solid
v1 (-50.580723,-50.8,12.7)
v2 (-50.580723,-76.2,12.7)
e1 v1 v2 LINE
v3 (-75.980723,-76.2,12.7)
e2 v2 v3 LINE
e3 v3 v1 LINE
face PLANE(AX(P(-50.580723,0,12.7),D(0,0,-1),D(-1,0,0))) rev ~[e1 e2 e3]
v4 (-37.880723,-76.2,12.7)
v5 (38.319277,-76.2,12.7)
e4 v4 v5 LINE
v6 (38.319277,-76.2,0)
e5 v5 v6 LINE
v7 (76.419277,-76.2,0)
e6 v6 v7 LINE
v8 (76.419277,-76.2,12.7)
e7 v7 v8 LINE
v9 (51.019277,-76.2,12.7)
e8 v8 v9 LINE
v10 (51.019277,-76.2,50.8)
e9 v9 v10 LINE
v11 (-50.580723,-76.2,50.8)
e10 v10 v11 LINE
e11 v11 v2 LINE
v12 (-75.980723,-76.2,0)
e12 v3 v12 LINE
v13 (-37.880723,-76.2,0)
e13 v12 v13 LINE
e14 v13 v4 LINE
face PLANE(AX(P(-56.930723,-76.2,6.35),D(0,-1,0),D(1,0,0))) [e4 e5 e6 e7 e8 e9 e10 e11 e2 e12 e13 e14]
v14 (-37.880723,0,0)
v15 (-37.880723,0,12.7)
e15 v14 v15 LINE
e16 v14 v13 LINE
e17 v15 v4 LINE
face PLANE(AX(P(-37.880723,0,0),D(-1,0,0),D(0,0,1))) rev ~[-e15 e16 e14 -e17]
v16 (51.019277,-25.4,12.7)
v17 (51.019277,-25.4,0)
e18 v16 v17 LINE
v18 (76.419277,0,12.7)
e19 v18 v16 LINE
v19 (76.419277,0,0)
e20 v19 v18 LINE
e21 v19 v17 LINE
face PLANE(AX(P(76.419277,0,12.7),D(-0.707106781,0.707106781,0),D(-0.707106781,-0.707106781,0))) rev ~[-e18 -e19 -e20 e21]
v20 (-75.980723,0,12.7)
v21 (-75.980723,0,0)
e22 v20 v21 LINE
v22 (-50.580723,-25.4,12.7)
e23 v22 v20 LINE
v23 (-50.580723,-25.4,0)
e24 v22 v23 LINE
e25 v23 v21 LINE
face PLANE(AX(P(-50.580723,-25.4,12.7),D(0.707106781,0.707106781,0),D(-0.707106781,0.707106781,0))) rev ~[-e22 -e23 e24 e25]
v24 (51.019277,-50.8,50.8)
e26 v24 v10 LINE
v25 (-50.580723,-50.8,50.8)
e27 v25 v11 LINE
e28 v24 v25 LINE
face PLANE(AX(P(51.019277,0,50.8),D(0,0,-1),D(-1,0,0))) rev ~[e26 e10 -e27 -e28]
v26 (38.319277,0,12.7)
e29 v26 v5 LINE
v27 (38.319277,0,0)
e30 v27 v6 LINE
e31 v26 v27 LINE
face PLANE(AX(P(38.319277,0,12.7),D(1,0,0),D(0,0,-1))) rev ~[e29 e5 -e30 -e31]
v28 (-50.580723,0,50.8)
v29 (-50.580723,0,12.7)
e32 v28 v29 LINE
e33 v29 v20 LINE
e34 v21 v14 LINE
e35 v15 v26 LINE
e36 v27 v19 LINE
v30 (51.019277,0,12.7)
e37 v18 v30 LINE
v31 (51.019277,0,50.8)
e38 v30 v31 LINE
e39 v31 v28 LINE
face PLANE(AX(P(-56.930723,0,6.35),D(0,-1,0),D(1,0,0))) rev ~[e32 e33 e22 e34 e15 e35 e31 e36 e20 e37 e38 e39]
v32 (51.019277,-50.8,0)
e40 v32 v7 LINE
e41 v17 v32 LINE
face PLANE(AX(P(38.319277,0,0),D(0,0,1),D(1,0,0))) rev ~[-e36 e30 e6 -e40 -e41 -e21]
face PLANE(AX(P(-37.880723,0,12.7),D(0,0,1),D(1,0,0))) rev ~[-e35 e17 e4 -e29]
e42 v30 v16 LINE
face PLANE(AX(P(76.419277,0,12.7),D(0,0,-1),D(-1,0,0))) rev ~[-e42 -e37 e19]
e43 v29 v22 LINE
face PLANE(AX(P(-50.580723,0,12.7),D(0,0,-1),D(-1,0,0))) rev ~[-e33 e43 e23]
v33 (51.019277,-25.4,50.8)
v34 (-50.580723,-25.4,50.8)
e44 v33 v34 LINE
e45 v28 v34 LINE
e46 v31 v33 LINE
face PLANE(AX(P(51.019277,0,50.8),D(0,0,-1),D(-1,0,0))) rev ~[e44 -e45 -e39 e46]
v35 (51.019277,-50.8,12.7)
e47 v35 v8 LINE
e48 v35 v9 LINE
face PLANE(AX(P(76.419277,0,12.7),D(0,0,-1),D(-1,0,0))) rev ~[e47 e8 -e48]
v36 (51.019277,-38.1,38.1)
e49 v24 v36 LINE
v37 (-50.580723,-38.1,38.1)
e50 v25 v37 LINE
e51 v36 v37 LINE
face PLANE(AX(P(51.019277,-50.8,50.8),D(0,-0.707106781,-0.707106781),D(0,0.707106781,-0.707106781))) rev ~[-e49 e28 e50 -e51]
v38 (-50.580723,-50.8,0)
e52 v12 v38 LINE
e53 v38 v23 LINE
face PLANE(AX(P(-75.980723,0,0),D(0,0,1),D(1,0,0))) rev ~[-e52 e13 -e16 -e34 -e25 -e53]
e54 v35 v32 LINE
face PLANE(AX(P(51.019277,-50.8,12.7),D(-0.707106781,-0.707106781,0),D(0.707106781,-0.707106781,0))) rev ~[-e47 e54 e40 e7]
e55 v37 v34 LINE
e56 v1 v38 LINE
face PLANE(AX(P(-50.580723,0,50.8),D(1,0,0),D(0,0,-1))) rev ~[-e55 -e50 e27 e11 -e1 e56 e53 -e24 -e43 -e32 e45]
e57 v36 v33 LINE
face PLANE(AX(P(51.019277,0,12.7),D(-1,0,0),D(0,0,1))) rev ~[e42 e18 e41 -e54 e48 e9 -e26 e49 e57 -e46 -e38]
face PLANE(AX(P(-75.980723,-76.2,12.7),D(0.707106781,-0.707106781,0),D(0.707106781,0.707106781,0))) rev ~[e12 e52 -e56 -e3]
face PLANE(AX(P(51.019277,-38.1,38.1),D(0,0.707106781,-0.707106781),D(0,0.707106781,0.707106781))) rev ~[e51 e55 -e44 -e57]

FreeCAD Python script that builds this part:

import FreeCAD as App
import Part
import Sketcher
Q = App.Units.Quantity

doc = App.newDocument("Part")
body = doc.addObject("PartDesign::Body", "Body")

# Sketch on XZ plane
sketch1 = doc.addObject("Sketcher::SketchObject", "Sketch")
body.addObject(sketch1)
sketch1.AttachmentSupport = (doc.XZ_Plane, [""])
sketch1.MapMode = "FlatFace"
sketch1.addGeometry([
    Part.LineSegment(App.Vector(-76, 13, 0), App.Vector(-76, 0, 0)),  # 0
    Part.LineSegment(App.Vector(-76, 0, 0), App.Vector(-38, 0, 0)),  # 1
    Part.LineSegment(App.Vector(-38, 0, 0), App.Vector(-38, 13, 0)),  # 2
    Part.LineSegment(App.Vector(-38, 13, 0), App.Vector(38, 13, 0)),  # 3
    Part.LineSegment(App.Vector(38, 13, 0), App.Vector(38, 0, 0)),  # 4
    Part.LineSegment(App.Vector(38, 0, 0), App.Vector(76, 0, 0)),  # 5
    Part.LineSegment(App.Vector(76, 0, 0), App.Vector(76, 13, 0)),  # 6
    Part.LineSegment(App.Vector(76, 13, 0), App.Vector(51, 13, 0)),  # 7
    Part.LineSegment(App.Vector(51, 13, 0), App.Vector(51, 51, 0)),  # 8
    Part.LineSegment(App.Vector(51, 51, 0), App.Vector(-51, 51, 0)),  # 9
    Part.LineSegment(App.Vector(-51, 51, 0), App.Vector(-51, 13, 0)),  # 10
    Part.LineSegment(App.Vector(-51, 13, 0), App.Vector(-76, 13, 0)),  # 11
], False)
sketch1.addConstraint([
    Sketcher.Constraint("Coincident", 0, 2, 1, 1),
    Sketcher.Constraint("Coincident", 1, 2, 2, 1),
    Sketcher.Constraint("Coincident", 2, 2, 3, 1),
    Sketcher.Constraint("Coincident", 3, 2, 4, 1),
    Sketcher.Constraint("Coincident", 4, 2, 5, 1),
    Sketcher.Constraint("Coincident", 5, 2, 6, 1),
    Sketcher.Constraint("Coincident", 6, 2, 7, 1),
    Sketcher.Constraint("Coincident", 7, 2, 8, 1),
    Sketcher.Constraint("Coincident", 8, 2, 9, 1),
    Sketcher.Constraint("Coincident", 9, 2, 10, 1),
    Sketcher.Constraint("Coincident", 10, 2, 11, 1),
    Sketcher.Constraint("Coincident", 11, 2, 0, 1),
    Sketcher.Constraint("Vertical", 0),
    Sketcher.Constraint("Horizontal", 1),
    Sketcher.Constraint("Vertical", 2),
    Sketcher.Constraint("Horizontal", 3),
    Sketcher.Constraint("Vertical", 4),
    Sketcher.Constraint("Horizontal", 5),
    Sketcher.Constraint("Vertical", 6),
    Sketcher.Constraint("Horizontal", 7),
    Sketcher.Constraint("Vertical", 8),
    Sketcher.Constraint("Horizontal", 9),
    Sketcher.Constraint("Vertical", 10),
    Sketcher.Constraint("Horizontal", 11),
    Sketcher.Constraint("PointOnObject", 0, 2, -1),
    Sketcher.Constraint("PointOnObject", 4, 2, -1),
    Sketcher.Constraint("Horizontal", 3, 2, 6, 2),
    Sketcher.Constraint("Horizontal", 7, 2, 10, 2),
    Sketcher.Constraint("Equal", 1, 5),
    Sketcher.Constraint("Equal", 7, 11),
    Sketcher.Constraint("Equal", 5, 8),
    Sketcher.Constraint("DistanceX", 3, 1, 3, 2, Q("3 in")),
    Sketcher.Constraint("DistanceX", 7, 2, 7, 1, Q("1 in")),
    Sketcher.Constraint("DistanceX", 9, 2, 9, 1, Q("4 in")),
    Sketcher.Constraint("DistanceY", 0, 2, 0, 1, Q("0.5 in")),
    Sketcher.Constraint("DistanceX", 0, 2, -1, 1, Q("75.980723 mm")),
])
pad1 = doc.addObject("PartDesign::Pad", "Pad")
body.addObject(pad1)
pad1.Profile = sketch1
pad1.Length = Q("3 in")

# Sketch on YZ plane
sketch2 = doc.addObject("Sketcher::SketchObject", "Sketch001")
body.addObject(sketch2)
sketch2.AttachmentSupport = (doc.YZ_Plane, [""])
sketch2.MapMode = "FlatFace"
sketch2.AttachmentOffset = App.Placement(App.Vector(0, 0, 51.019277), App.Rotation())
sketch2.addGeometry([
    Part.LineSegment(App.Vector(-51, 51, 0), App.Vector(-38, 38, 0)),
    Part.LineSegment(App.Vector(-38, 38, 0), App.Vector(-25, 51, 0)),
    Part.LineSegment(App.Vector(-25, 51, 0), App.Vector(-51, 51, 0)),
], False)
sketch2.addConstraint([
    Sketcher.Constraint("Coincident", 0, 2, 1, 1),
    Sketcher.Constraint("Coincident", 1, 2, 2, 1),
    Sketcher.Constraint("Coincident", 2, 2, 0, 1),
    Sketcher.Constraint("Horizontal", 2),
    Sketcher.Constraint("Perpendicular", 0, 1),
    Sketcher.Constraint("Equal", 0, 1),
    Sketcher.Constraint("DistanceX", 2, 2, 2, 1, Q("1 in")),
    Sketcher.Constraint("DistanceX", 1, 2, -1, 1, Q("1 in")),
    Sketcher.Constraint("DistanceY", -1, 1, 1, 2, Q("2 in")),
])
pocket1 = doc.addObject("PartDesign::Pocket", "Pocket")
body.addObject(pocket1)
pocket1.Profile = sketch2
pocket1.Length = Q("4 in")

# Sketch on XY plane
sketch3 = doc.addObject("Sketcher::SketchObject", "Sketch002")
body.addObject(sketch3)
sketch3.AttachmentSupport = (doc.XY_Plane, [""])
sketch3.MapMode = "FlatFace"
sketch3.AttachmentOffset = App.Placement(App.Vector(0, 0, 0.5 * 25.4), App.Rotation())
sketch3.addGeometry([
    Part.LineSegment(App.Vector(51, -25, 0), App.Vector(51, -51, 0)),
    Part.LineSegment(App.Vector(51, -51, 0), App.Vector(76, -76, 0)),
    Part.LineSegment(App.Vector(76, -76, 0), App.Vector(76, 0, 0)),
    Part.LineSegment(App.Vector(76, 0, 0), App.Vector(51, -25, 0)),
], False)
sketch3.addConstraint([
    Sketcher.Constraint("Coincident", 0, 2, 1, 1),
    Sketcher.Constraint("Coincident", 1, 2, 2, 1),
    Sketcher.Constraint("Coincident", 2, 2, 3, 1),
    Sketcher.Constraint("Coincident", 3, 2, 0, 1),
    Sketcher.Constraint("Vertical", 0),
    Sketcher.Constraint("Vertical", 2),
    Sketcher.Constraint("PointOnObject", 2, 2, -1),
    Sketcher.Constraint("Perpendicular", 1, 3),
    Sketcher.Constraint("Equal", 1, 3),
    Sketcher.Constraint("DistanceY", 0, 2, 0, 1, Q("1 in")),
    Sketcher.Constraint("DistanceY", 2, 1, 2, 2, Q("3 in")),
    Sketcher.Constraint("DistanceX", -1, 1, 0, 2, Q("51.019277 mm")),
])
pocket2 = doc.addObject("PartDesign::Pocket", "Pocket001")
body.addObject(pocket2)
pocket2.Profile = sketch3
pocket2.Length = Q("1 in")

# Sketch on XY plane
sketch4 = doc.addObject("Sketcher::SketchObject", "Sketch003")
body.addObject(sketch4)
sketch4.AttachmentSupport = (doc.XY_Plane, [""])
sketch4.MapMode = "FlatFace"
sketch4.AttachmentOffset = App.Placement(App.Vector(0, 0, 0.5 * 25.4), App.Rotation())
sketch4.addGeometry([
    Part.LineSegment(App.Vector(-51, -51, 0), App.Vector(-51, -25, 0)),
    Part.LineSegment(App.Vector(-51, -25, 0), App.Vector(-76, 0, 0)),
    Part.LineSegment(App.Vector(-76, 0, 0), App.Vector(-76, -76, 0)),
    Part.LineSegment(App.Vector(-76, -76, 0), App.Vector(-51, -51, 0)),
], False)
sketch4.addConstraint([
    Sketcher.Constraint("Coincident", 0, 2, 1, 1),
    Sketcher.Constraint("Coincident", 1, 2, 2, 1),
    Sketcher.Constraint("Coincident", 2, 2, 3, 1),
    Sketcher.Constraint("Coincident", 3, 2, 0, 1),
    Sketcher.Constraint("Vertical", 0),
    Sketcher.Constraint("Vertical", 2),
    Sketcher.Constraint("PointOnObject", 1, 2, -1),
    Sketcher.Constraint("Perpendicular", 1, 3),
    Sketcher.Constraint("Equal", 1, 3),
    Sketcher.Constraint("DistanceY", 0, 1, 0, 2, Q("1 in")),
    Sketcher.Constraint("DistanceY", 2, 2, 2, 1, Q("3 in")),
    Sketcher.Constraint("DistanceX", 0, 2, -1, 1, Q("50.580723 mm")),
])
pocket3 = doc.addObject("PartDesign::Pocket", "Pocket002")
body.addObject(pocket3)
pocket3.Profile = sketch4
pocket3.Length = Q("1 in")

doc.recompute()
